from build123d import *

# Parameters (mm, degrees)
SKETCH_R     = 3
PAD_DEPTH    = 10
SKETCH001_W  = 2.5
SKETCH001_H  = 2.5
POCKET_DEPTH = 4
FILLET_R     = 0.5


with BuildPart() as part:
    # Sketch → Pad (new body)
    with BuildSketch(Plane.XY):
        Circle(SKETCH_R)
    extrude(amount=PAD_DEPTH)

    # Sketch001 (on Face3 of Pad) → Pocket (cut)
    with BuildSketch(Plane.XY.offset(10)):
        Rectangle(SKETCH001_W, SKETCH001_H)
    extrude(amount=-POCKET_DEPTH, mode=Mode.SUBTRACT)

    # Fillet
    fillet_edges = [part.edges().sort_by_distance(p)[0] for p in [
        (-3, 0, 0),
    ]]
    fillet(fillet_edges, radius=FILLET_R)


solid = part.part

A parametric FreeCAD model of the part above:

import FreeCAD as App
import Part
import Sketcher
Q = App.Units.Quantity


def edges_at(feature, points):
    """Names of the edges that pass closest to the given points."""
    edges = feature.Shape.Edges
    near = lambda p: min(range(len(edges)), key=lambda i: edges[i].distToShape(Part.Vertex(*p))[0])
    return sorted({f"Edge{near(p) + 1}" for p in points})


def add_polygon(sketch, points):
    """Adds a closed chain of lines whose ends are joined by coincident constraints."""
    first, n = sketch.GeometryCount, len(points)
    for a, b in zip(points, points[1:] + points[:1]):
        sketch.addGeometry(Part.LineSegment(App.Vector(*a, 0), App.Vector(*b, 0)), False)
    for i in range(n):
        sketch.addConstraint(Sketcher.Constraint("Coincident", first + i, 2, first + (i + 1) % n, 1))

doc = App.newDocument("Part")
params = doc.addObject("Spreadsheet::Sheet", "Params")
for row, (alias, value) in enumerate([
    ("sketch1_diameter", "6 mm"),
    ("pad1_length", "10 mm"),
    ("sketch2_width", "2.5 mm"),
    ("pocket1_length", "4 mm"),
    ("fillet_radius", "0.5 mm"),
], start=1):
    params.set(f"A{row}", alias)
    params.set(f"B{row}", "=" + value)
    params.setAlias(f"B{row}", alias)

body = doc.addObject("PartDesign::Body", "Body")

# Sketch on XY plane
sketch1 = doc.addObject("Sketcher::SketchObject", "Sketch")
body.addObject(sketch1)
sketch1.AttachmentSupport = (doc.XY_Plane, [""])
sketch1.MapMode = "FlatFace"
sketch1.addGeometry(Part.Circle(App.Vector(0, 0, 0), App.Vector(0, 0, 1), 3), False)
sketch1.addConstraint([
    Sketcher.Constraint("Coincident", 0, 3, -1, 1),
    Sketcher.Constraint("Diameter", 0, Q("6 mm")),
])
sketch1.setExpression("Constraints[1]", "Params.sketch1_diameter")
pad1 = doc.addObject("PartDesign::Pad", "Pad")
body.addObject(pad1)
pad1.Profile = sketch1
pad1.setExpression("Length", "Params.pad1_length")

# Sketch on XY plane
sketch2 = doc.addObject("Sketcher::SketchObject", "Sketch001")
body.addObject(sketch2)
sketch2.AttachmentSupport = (doc.XY_Plane, [""])
sketch2.MapMode = "FlatFace"
sketch2.AttachmentOffset = App.Placement(App.Vector(0, 0, 10), App.Rotation())
add_polygon(sketch2, [(-1.2, 1.2), (-1.2, -1.2), (1.2, -1.2), (1.2, 1.2)])  # lines 0-3
sketch2.addConstraint([
    Sketcher.Constraint("Vertical", 0),
    Sketcher.Constraint("Horizontal", 1),
    Sketcher.Constraint("Vertical", 2),
    Sketcher.Constraint("Horizontal", 3),
    Sketcher.Constraint("Symmetric", 0, 2, 2, 2, -1, 1),
    Sketcher.Constraint("Equal", 3, 0),
    Sketcher.Constraint("DistanceX", 1, 1, 1, 2, Q("2.5 mm")),
])
sketch2.setExpression("Constraints[10]", "Params.sketch2_width")
pocket1 = doc.addObject("PartDesign::Pocket", "Pocket")
body.addObject(pocket1)
pocket1.Profile = sketch2
pocket1.setExpression("Length", "Params.pocket1_length")
doc.recompute()

fillet = doc.addObject("PartDesign::Fillet", "Fillet")
body.addObject(fillet)
fillet.Base = (pocket1, edges_at(pocket1, [(-3, 0, 0)]))
fillet.setExpression("Radius", "Params.fillet_radius")

doc.recompute()
